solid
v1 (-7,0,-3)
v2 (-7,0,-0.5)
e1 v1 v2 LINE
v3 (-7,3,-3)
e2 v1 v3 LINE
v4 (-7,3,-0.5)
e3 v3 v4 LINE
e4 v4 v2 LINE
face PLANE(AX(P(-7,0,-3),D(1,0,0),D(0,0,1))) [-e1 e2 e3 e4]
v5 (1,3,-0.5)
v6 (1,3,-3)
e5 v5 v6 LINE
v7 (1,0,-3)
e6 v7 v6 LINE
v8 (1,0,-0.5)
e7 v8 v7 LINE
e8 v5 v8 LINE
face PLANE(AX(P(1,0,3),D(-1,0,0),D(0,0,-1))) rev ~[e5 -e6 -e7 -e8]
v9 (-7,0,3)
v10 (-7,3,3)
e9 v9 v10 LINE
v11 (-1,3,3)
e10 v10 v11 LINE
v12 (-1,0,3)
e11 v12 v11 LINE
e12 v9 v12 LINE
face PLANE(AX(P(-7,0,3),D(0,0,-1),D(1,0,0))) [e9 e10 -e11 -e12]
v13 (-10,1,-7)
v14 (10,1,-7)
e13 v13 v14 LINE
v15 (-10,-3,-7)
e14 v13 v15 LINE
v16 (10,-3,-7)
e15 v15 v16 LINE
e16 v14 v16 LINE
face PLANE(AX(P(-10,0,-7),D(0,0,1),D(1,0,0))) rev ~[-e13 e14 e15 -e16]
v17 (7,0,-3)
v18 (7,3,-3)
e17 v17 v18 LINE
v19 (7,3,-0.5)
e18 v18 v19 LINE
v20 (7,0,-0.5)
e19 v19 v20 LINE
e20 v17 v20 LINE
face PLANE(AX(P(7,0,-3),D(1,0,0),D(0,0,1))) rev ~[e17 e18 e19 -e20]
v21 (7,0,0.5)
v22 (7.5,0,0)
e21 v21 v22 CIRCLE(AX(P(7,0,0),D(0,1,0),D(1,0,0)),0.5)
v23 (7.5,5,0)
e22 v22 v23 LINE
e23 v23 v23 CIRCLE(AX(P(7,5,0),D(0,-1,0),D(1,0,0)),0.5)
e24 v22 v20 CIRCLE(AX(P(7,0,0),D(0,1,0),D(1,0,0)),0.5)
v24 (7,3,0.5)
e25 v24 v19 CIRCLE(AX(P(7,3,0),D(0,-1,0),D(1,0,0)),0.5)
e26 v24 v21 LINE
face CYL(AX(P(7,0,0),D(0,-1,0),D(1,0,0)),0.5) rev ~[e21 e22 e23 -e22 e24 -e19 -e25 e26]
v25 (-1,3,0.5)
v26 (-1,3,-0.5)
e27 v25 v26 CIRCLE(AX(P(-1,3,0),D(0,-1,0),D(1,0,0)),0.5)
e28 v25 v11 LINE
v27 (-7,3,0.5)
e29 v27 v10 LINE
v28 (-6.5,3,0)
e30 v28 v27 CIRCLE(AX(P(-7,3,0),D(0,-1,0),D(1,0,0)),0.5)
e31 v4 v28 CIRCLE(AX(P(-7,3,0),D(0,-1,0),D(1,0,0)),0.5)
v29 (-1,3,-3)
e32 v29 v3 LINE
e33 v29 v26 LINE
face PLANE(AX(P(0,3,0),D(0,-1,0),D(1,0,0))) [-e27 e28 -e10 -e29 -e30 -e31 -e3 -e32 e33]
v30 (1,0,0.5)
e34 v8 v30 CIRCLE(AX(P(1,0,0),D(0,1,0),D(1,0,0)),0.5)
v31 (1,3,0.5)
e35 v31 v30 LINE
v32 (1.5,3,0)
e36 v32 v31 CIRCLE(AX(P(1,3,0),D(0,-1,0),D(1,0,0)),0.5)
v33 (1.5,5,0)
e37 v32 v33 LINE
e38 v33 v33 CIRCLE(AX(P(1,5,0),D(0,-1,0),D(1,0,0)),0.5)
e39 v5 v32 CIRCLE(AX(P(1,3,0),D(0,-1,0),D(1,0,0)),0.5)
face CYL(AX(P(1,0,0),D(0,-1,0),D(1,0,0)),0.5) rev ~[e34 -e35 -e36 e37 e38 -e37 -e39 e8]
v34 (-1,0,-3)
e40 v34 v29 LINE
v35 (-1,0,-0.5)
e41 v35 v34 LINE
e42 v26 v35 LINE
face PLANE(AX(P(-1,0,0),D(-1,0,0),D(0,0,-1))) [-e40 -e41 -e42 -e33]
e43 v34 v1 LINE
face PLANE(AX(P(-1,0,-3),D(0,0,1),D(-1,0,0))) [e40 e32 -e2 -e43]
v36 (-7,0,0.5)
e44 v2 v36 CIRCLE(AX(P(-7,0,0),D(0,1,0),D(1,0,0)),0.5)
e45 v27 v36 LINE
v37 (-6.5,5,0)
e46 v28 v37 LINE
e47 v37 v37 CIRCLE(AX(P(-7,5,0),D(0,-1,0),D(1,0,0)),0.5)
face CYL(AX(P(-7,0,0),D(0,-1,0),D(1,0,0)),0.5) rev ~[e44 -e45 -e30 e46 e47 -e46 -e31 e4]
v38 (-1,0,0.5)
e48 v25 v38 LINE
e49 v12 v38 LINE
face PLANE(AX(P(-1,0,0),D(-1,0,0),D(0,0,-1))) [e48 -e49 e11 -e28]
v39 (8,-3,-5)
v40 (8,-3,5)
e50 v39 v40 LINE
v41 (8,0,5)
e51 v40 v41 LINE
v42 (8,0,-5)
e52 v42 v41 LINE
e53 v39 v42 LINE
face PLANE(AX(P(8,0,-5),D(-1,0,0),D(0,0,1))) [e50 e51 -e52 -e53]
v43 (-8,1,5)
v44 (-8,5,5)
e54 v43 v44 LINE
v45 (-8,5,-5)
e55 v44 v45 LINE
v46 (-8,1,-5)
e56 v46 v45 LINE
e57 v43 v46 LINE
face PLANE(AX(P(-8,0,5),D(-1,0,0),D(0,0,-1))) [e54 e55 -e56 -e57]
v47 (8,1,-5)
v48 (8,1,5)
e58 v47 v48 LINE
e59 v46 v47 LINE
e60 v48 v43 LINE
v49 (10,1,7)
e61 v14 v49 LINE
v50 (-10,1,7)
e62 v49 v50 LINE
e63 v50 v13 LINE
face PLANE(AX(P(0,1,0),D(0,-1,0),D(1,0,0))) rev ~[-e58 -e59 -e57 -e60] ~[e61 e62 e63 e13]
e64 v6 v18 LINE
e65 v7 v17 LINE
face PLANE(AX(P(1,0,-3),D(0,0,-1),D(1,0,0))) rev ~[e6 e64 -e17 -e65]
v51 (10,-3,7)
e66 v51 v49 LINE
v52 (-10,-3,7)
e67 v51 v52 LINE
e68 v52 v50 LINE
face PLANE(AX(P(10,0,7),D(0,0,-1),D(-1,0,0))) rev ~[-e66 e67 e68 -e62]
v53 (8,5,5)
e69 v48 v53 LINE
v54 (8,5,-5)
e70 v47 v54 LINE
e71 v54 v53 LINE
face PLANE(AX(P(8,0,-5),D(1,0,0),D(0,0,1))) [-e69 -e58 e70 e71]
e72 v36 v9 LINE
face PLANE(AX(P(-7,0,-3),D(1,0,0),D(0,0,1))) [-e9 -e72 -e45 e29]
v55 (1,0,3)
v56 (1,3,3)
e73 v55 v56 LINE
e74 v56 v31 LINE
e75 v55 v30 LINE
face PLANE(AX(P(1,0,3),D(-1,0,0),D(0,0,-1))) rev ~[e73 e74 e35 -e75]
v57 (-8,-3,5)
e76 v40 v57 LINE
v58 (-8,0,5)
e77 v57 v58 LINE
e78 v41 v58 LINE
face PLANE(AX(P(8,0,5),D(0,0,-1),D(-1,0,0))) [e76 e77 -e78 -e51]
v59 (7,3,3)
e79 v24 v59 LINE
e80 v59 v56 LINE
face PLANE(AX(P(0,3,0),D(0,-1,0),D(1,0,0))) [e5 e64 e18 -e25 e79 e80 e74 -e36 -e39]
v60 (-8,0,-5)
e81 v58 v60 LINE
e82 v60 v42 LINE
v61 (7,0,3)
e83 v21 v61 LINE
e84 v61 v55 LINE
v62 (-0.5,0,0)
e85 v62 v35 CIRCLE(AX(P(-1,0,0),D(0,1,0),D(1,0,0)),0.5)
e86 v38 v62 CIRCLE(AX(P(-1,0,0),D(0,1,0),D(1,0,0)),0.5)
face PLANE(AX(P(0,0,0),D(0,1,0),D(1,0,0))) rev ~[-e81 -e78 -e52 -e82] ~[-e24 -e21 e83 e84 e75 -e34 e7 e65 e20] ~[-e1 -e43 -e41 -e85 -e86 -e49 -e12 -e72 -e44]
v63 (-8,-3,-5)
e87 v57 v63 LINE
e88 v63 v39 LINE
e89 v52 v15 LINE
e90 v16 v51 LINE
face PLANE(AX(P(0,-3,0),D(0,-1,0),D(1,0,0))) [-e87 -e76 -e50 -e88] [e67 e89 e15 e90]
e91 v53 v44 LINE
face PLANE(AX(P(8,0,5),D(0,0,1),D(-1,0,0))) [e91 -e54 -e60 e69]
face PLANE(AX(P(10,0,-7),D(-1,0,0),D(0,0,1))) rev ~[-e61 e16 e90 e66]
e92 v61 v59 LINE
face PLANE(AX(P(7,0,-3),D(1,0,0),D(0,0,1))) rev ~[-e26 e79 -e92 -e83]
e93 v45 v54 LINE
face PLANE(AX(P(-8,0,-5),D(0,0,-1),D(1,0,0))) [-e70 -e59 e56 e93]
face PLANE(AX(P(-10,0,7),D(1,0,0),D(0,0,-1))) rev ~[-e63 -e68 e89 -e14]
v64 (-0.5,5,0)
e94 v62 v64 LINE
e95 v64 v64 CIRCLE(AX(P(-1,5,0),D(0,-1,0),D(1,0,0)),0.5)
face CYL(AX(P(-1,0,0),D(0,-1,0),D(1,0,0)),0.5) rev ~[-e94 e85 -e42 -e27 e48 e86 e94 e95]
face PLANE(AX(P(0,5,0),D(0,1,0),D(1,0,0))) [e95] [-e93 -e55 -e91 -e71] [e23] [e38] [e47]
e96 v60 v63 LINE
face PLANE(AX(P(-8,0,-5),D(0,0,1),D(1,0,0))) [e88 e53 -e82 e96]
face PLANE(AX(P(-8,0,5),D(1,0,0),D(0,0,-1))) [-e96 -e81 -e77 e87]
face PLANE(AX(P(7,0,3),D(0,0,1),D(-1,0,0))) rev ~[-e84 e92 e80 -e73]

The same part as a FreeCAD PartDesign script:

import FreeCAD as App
import Part
import Sketcher
Q = App.Units.Quantity


def add_polygon(sketch, points):
    """Adds a closed chain of lines whose ends are joined by coincident constraints."""
    first, n = sketch.GeometryCount, len(points)
    for a, b in zip(points, points[1:] + points[:1]):
        sketch.addGeometry(Part.LineSegment(App.Vector(*a, 0), App.Vector(*b, 0)), False)
    for i in range(n):
        sketch.addConstraint(Sketcher.Constraint("Coincident", first + i, 2, first + (i + 1) % n, 1))

doc = App.newDocument("Part")
body = doc.addObject("PartDesign::Body", "Body")

# Sketch on XZ plane
sketch1 = doc.addObject("Sketcher::SketchObject", "Sketch")
body.addObject(sketch1)
sketch1.AttachmentSupport = (doc.XZ_Plane, [""])
sketch1.MapMode = "FlatFace"
add_polygon(sketch1, [(-8, 5), (8, 5), (8, -5), (-8, -5)])  # lines 0-3
sketch1.addConstraint(Sketcher.Constraint("Horizontal", 0))
sketch1.addConstraint(Sketcher.Constraint("Vertical", 1))
sketch1.addConstraint(Sketcher.Constraint("Horizontal", 2))
sketch1.addConstraint(Sketcher.Constraint("Vertical", 3))
sketch1.addConstraint(Sketcher.Constraint("Symmetric", 0, 2, 2, 2, -1, 1))
sketch1.addConstraint(Sketcher.Constraint("DistanceX", 0, 1, 0, 2, Q("16 mm")))
sketch1.addConstraint(Sketcher.Constraint("DistanceY", 1, 2, 1, 1, Q("10 mm")))
pad1 = doc.addObject("PartDesign::Pad", "Pad")
body.addObject(pad1)
pad1.Profile = sketch1
pad1.Length = 5
pad1.Reversed = True

# Sketch on XZ plane
sketch2 = doc.addObject("Sketcher::SketchObject", "Sketch001")
body.addObject(sketch2)
sketch2.AttachmentSupport = (doc.XZ_Plane, [""])
sketch2.MapMode = "FlatFace"
add_polygon(sketch2, [(7, -3), (7, 3), (1, 3), (1, -3)])  # lines 0-3
add_polygon(sketch2, [(-1, -3), (-1, 3), (-7, 3), (-7, -3)])  # lines 4-7
sketch2.addConstraint(Sketcher.Constraint("Vertical", 0))
sketch2.addConstraint(Sketcher.Constraint("Horizontal", 1))
sketch2.addConstraint(Sketcher.Constraint("Vertical", 2))
sketch2.addConstraint(Sketcher.Constraint("Horizontal", 3))
sketch2.addConstraint(Sketcher.Constraint("Vertical", 4))
sketch2.addConstraint(Sketcher.Constraint("Horizontal", 5))
sketch2.addConstraint(Sketcher.Constraint("Vertical", 6))
sketch2.addConstraint(Sketcher.Constraint("Horizontal", 7))
sketch2.addConstraint(Sketcher.Constraint("Symmetric", 2, 2, 4, 2, -1, 1))
sketch2.addConstraint(Sketcher.Constraint("Symmetric", 0, 2, 6, 2, -1, 1))
sketch2.addConstraint(Sketcher.Constraint("Horizontal", 1, 2, 4, 2))
sketch2.addConstraint(Sketcher.Constraint("Equal", 7, 0))
sketch2.addConstraint(Sketcher.Constraint("DistanceX", 1, 2, 1, 1, Q("6 mm")))
sketch2.addConstraint(Sketcher.Constraint("DistanceX", -1, 1, 1, 2, Q("1 mm")))
pocket1 = doc.addObject("PartDesign::Pocket", "Pocket")
body.addObject(pocket1)
pocket1.Profile = sketch2
pocket1.Length = 3

# Sketch on XZ plane
sketch3 = doc.addObject("Sketcher::SketchObject", "Sketch002")
body.addObject(sketch3)
sketch3.AttachmentSupport = (doc.XZ_Plane, [""])
sketch3.MapMode = "FlatFace"
add_polygon(sketch3, [(-10, 7), (-10, -7), (10, -7), (10, 7)])  # lines 0-3
add_polygon(sketch3, [(8, -5), (-8, -5), (-8, 5), (8, 5)])  # lines 4-7
sketch3.addConstraint(Sketcher.Constraint("Vertical", 0))
sketch3.addConstraint(Sketcher.Constraint("Horizontal", 1))
sketch3.addConstraint(Sketcher.Constraint("Vertical", 2))
sketch3.addConstraint(Sketcher.Constraint("Horizontal", 3))
sketch3.addConstraint(Sketcher.Constraint("Horizontal", 4))
sketch3.addConstraint(Sketcher.Constraint("Vertical", 5))
sketch3.addConstraint(Sketcher.Constraint("Horizontal", 6))
sketch3.addConstraint(Sketcher.Constraint("Vertical", 7))
sketch3.addConstraint(Sketcher.Constraint("Symmetric", 0, 2, 2, 2, -1, 1))
sketch3.addConstraint(Sketcher.Constraint("Symmetric", 4, 2, 6, 2, -1, 1))
sketch3.addConstraint(Sketcher.Constraint("DistanceX", 0, 2, 4, 2, Q("2 mm")))
sketch3.addConstraint(Sketcher.Constraint("DistanceY", 0, 2, 4, 2, Q("2 mm")))
sketch3.addConstraint(Sketcher.Constraint("DistanceX", 1, 1, 1, 2, Q("20 mm")))
sketch3.addConstraint(Sketcher.Constraint("DistanceY", 0, 2, 0, 1, Q("14 mm")))
pad2 = doc.addObject("PartDesign::Pad", "Pad001")
body.addObject(pad2)
pad2.Profile = sketch3
pad2.Type = "TwoLengths"
pad2.Length = 3
pad2.Length2 = 1

# Sketch on XZ plane
sketch4 = doc.addObject("Sketcher::SketchObject", "Sketch003")
body.addObject(sketch4)
sketch4.AttachmentSupport = (doc.XZ_Plane, [""])
sketch4.MapMode = "FlatFace"
sketch4.addGeometry(Part.Circle(App.Vector(-7, 0, 0), App.Vector(0, 0, 1), 0.5), False)
sketch4.addGeometry(Part.Circle(App.Vector(-1, 0, 0), App.Vector(0, 0, 1), 0.5), False)
sketch4.addGeometry(Part.Circle(App.Vector(1, 0, 0), App.Vector(0, 0, 1), 0.5), False)
sketch4.addGeometry(Part.Circle(App.Vector(7, 0, 0), App.Vector(0, 0, 1), 0.5), False)
sketch4.addConstraint(Sketcher.Constraint("Equal", 0, 1))
sketch4.addConstraint(Sketcher.Constraint("Equal", 1, 2))
sketch4.addConstraint(Sketcher.Constraint("Equal", 2, 3))
sketch4.addConstraint(Sketcher.Constraint("Symmetric", 1, 3, 2, 3, -1, 1))
sketch4.addConstraint(Sketcher.Constraint("Symmetric", 0, 3, 3, 3, -1, 1))
sketch4.addConstraint(Sketcher.Constraint("PointOnObject", 0, 3, -1))
sketch4.addConstraint(Sketcher.Constraint("PointOnObject", 1, 3, -1))
sketch4.addConstraint(Sketcher.Constraint("Diameter", 0, Q("1 mm")))
sketch4.addConstraint(Sketcher.Constraint("DistanceX", 1, 3, -1, 1, Q("1 mm")))
sketch4.addConstraint(Sketcher.Constraint("DistanceX", 0, 3, -1, 1, Q("7 mm")))
pocket2 = doc.addObject("PartDesign::Pocket", "Pocket001")
body.addObject(pocket2)
pocket2.Profile = sketch4
pocket2.Length = 5

doc.recompute()
